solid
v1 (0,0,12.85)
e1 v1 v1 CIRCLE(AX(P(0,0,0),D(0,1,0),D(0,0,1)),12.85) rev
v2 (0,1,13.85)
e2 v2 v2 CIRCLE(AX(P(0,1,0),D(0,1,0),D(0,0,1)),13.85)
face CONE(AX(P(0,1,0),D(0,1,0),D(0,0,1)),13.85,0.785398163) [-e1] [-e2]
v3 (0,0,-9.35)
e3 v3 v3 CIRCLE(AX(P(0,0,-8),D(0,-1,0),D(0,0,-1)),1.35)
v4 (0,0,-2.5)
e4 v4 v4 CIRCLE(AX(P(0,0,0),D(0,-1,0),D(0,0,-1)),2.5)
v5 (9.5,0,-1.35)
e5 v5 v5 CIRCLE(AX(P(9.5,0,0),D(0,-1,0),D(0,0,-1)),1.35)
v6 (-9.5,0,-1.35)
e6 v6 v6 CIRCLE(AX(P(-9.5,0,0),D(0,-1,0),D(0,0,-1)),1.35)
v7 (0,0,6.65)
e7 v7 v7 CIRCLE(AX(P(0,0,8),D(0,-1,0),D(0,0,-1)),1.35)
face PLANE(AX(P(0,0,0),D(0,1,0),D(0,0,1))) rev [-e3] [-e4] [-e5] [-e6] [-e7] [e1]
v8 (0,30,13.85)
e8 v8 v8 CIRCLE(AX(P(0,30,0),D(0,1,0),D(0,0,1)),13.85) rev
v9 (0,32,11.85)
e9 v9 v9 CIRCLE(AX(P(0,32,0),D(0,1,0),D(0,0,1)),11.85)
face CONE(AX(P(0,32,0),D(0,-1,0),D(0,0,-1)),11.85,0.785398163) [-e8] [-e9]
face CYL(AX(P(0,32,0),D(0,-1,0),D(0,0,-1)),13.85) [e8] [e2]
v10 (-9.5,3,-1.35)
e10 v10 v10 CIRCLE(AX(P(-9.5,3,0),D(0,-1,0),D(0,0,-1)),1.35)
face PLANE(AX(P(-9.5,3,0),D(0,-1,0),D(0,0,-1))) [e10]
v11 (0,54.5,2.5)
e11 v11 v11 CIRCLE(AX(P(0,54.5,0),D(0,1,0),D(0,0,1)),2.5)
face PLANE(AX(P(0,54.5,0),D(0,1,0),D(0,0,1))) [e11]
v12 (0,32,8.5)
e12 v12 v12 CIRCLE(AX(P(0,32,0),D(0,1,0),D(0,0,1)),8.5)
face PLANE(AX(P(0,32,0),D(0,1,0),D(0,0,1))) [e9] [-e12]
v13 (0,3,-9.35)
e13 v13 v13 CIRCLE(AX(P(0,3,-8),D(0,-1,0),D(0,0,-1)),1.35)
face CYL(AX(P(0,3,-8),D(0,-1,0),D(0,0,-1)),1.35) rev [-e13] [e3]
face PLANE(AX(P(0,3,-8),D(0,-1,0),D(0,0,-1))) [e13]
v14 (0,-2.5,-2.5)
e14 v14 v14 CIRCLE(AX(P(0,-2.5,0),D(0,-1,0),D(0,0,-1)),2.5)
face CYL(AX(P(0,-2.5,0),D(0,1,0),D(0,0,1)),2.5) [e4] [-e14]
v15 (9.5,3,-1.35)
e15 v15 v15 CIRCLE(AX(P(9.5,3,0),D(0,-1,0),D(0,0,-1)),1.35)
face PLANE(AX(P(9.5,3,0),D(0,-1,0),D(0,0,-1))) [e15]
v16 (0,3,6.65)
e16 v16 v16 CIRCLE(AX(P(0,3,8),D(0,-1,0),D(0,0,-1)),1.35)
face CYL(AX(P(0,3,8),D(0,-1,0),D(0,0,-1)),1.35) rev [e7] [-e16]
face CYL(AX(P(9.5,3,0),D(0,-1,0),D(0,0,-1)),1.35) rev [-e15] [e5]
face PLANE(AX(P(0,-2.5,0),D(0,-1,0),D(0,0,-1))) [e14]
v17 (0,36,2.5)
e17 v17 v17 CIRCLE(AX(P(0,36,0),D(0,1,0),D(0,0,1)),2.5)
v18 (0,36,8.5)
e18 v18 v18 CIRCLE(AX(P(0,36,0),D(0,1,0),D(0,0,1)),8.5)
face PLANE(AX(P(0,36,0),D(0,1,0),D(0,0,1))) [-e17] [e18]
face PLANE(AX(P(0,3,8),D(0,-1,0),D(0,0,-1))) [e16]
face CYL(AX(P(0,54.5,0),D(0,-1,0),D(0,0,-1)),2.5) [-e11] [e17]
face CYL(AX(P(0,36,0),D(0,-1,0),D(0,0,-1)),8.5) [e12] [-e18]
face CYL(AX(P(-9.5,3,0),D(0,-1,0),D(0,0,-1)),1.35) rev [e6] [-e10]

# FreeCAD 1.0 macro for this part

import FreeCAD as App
import Part
import Sketcher
from FreeCAD import Vector


def edges_at(feature, points):
    """Names of the edges that pass closest to the given points."""
    edges = feature.Shape.Edges
    near = lambda p: min(range(len(edges)), key=lambda i: edges[i].distToShape(Part.Vertex(*p))[0])
    return sorted({f"Edge{near(p) + 1}" for p in points})

doc = App.newDocument("Part")
body = doc.addObject("PartDesign::Body", "Body")

# Sketch on XZ plane
sketch1 = body.newObject("Sketcher::SketchObject", "Sketch")
sketch1.AttachmentSupport = (doc.getObject("XZ_Plane"), [""])
sketch1.MapMode = "FlatFace"
sketch1.addGeometry(Part.Circle(Vector(0, 0, 0), Vector(0, 0, 1), 14), False)
sketch1.addConstraint([
    Sketcher.Constraint("Coincident", 0, 3, -1, 1),
    Sketcher.Constraint("Diameter", 0, 27.7),
])
pad1 = body.newObject("PartDesign::Pad", "Pad")
pad1.Profile = sketch1
pad1.Length = 32
pad1.Reversed = True

# Sketch on XZ plane
sketch2 = body.newObject("Sketcher::SketchObject", "Sketch001")
sketch2.AttachmentSupport = (doc.getObject("XZ_Plane"), [""])
sketch2.MapMode = "FlatFace"
sketch2.addGeometry(Part.Circle(Vector(0, 0, 0), Vector(0, 0, 1), 2.5), False)
sketch2.addConstraint([
    Sketcher.Constraint("Coincident", 0, 3, -1, 1),
    Sketcher.Constraint("Diameter", 0, 5.0),
])
pad2 = body.newObject("PartDesign::Pad", "Pad001")
pad2.Profile = sketch2
pad2.Length = 2.5

# Sketch on XZ plane
sketch3 = body.newObject("Sketcher::SketchObject", "Sketch002")
sketch3.AttachmentSupport = (doc.getObject("XZ_Plane"), [""])
sketch3.MapMode = "FlatFace"
sketch3.AttachmentOffset = App.Placement(Vector(0, 0, -32), App.Rotation())
sketch3.addGeometry(Part.Circle(Vector(0, 0, 0), Vector(0, 0, 1), 8), False)
sketch3.addConstraint([
    Sketcher.Constraint("Coincident", 0, 3, -1, 1),
    Sketcher.Constraint("Diameter", 0, 17.0),
])
pad3 = body.newObject("PartDesign::Pad", "Pad002")
pad3.Profile = sketch3
pad3.Length = 4
pad3.Reversed = True

# Sketch on XZ plane
sketch4 = body.newObject("Sketcher::SketchObject", "Sketch003")
sketch4.AttachmentSupport = (doc.getObject("XZ_Plane"), [""])
sketch4.MapMode = "FlatFace"
sketch4.AttachmentOffset = App.Placement(Vector(0, 0, -54.5), App.Rotation())
sketch4.addGeometry(Part.Circle(Vector(0, 0, 0), Vector(0, 0, 1), 2.5), False)
sketch4.addConstraint([
    Sketcher.Constraint("Coincident", 0, 3, -1, 1),
    Sketcher.Constraint("Diameter", 0, 5.0),
])
pad4 = body.newObject("PartDesign::Pad", "Pad003")
pad4.Profile = sketch4
pad4.Length = 18.5
doc.recompute()

chamfer = body.newObject("PartDesign::Chamfer", "Chamfer")
chamfer.Base = (pad4, edges_at(pad4, [(0, 32, -13.85)]))
chamfer.Size = 2
doc.recompute()

chamfer2 = body.newObject("PartDesign::Chamfer", "Chamfer001")
chamfer2.Base = (chamfer, edges_at(chamfer, [(0, 0, -13.85)]))
chamfer2.Size = 1

# Sketch on XZ plane
sketch5 = body.newObject("Sketcher::SketchObject", "Sketch004")
sketch5.AttachmentSupport = (doc.getObject("XZ_Plane"), [""])
sketch5.MapMode = "FlatFace"
sketch5.addGeometry([
    Part.Circle(Vector(0, 8, 0), Vector(0, 0, 1), 1.4),
    Part.Circle(Vector(-9.5, 0, 0), Vector(0, 0, 1), 1.4),
    Part.Circle(Vector(0, -8, 0), Vector(0, 0, 1), 1.4),
    Part.Circle(Vector(9.5, 0, 0), Vector(0, 0, 1), 1.4),
], False)
sketch5.addConstraint([
    Sketcher.Constraint("Equal", 0, 1),
    Sketcher.Constraint("Equal", 1, 2),
    Sketcher.Constraint("Equal", 2, 3),
    Sketcher.Constraint("Symmetric", 0, 3, 2, 3, -1, 1),
    Sketcher.Constraint("Symmetric", 1, 3, 3, 3, -1, 1),
    Sketcher.Constraint("PointOnObject", 0, 3, -2),
    Sketcher.Constraint("PointOnObject", 1, 3, -1),
    Sketcher.Constraint("Diameter", 0, 2.7),
    Sketcher.Constraint("DistanceY", -1, 1, 0, 3, 8.0),
    Sketcher.Constraint("DistanceX", 1, 3, 3, 3, 19.0),
])
pocket1 = body.newObject("PartDesign::Pocket", "Pocket")
pocket1.Profile = sketch5
pocket1.Length = 3

doc.recompute()
